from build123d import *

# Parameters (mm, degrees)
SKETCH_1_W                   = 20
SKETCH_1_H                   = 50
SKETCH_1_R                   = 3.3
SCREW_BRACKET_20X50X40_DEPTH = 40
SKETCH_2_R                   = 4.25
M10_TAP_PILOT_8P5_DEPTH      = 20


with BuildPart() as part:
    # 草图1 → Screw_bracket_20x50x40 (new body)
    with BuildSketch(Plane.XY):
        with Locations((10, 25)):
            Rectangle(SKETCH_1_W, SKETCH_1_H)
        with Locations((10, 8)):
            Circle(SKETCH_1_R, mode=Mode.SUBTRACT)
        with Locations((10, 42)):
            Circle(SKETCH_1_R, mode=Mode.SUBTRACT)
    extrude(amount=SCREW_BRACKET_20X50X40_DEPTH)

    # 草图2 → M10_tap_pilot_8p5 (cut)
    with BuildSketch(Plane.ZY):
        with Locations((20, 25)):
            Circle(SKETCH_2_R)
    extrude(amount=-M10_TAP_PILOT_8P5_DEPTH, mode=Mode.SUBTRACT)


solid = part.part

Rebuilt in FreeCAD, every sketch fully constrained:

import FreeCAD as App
import Part
import Sketcher
from FreeCAD import Vector


def add_polygon(sketch, points):
    """Adds a closed chain of lines whose ends are joined by coincident constraints."""
    first, n = sketch.GeometryCount, len(points)
    for a, b in zip(points, points[1:] + points[:1]):
        sketch.addGeometry(Part.LineSegment(App.Vector(*a, 0), App.Vector(*b, 0)), False)
    for i in range(n):
        sketch.addConstraint(Sketcher.Constraint("Coincident", first + i, 2, first + (i + 1) % n, 1))

doc = App.newDocument("Part")
body = doc.addObject("PartDesign::Body", "Body")

sketch1 = body.newObject("Sketcher::SketchObject", "Sketch")
sketch1.AttachmentSupport = (doc.getObject("XY_Plane"), [""])
sketch1.MapMode = "FlatFace"
add_polygon(sketch1, [(0, 50), (0, 0), (20, 0), (20, 50)])
sketch1.addGeometry(Part.Circle(Vector(10, 8, 0), Vector(0, 0, 1), 3.3), False)
sketch1.addGeometry(Part.Circle(Vector(10, 42, 0), Vector(0, 0, 1), 3.3), False)
sketch1.addConstraint([
    Sketcher.Constraint("Vertical", 0),
    Sketcher.Constraint("Horizontal", 1),
    Sketcher.Constraint("Vertical", 2),
    Sketcher.Constraint("Horizontal", 3),
    Sketcher.Constraint("Coincident", 0, 2, -1, 1),
    Sketcher.Constraint("Equal", 4, 5),
    Sketcher.Constraint("Vertical", 4, 3, 5, 3),
    Sketcher.Constraint("Diameter", 4, 6.6),
    Sketcher.Constraint("DistanceX", 1, 1, 1, 2, 20.0),
    Sketcher.Constraint("DistanceY", 0, 2, 0, 1, 50.0),
    Sketcher.Constraint("DistanceX", -1, 1, 4, 3, 10.0),
    Sketcher.Constraint("DistanceY", -1, 1, 4, 3, 8.0),
    Sketcher.Constraint("DistanceY", -1, 1, 5, 3, 42.0),
])
pad1 = body.newObject("PartDesign::Pad", "Pad")
pad1.Profile = sketch1
pad1.Length = 40

sketch2 = body.newObject("Sketcher::SketchObject", "Sketch001")
sketch2.AttachmentSupport = (doc.getObject("YZ_Plane"), [""])
sketch2.MapMode = "FlatFace"
sketch2.addGeometry(Part.Circle(Vector(25, 20, 0), Vector(0, 0, 1), 4.2), False)
sketch2.addConstraint([
    Sketcher.Constraint("Diameter", 0, 8.5),
    Sketcher.Constraint("DistanceX", -1, 1, 0, 3, 25.0),
    Sketcher.Constraint("DistanceY", -1, 1, 0, 3, 20.0),
])
pocket1 = body.newObject("PartDesign::Pocket", "Pocket")
pocket1.Profile = sketch2
pocket1.Length = 20
pocket1.Reversed = True

doc.recompute()
